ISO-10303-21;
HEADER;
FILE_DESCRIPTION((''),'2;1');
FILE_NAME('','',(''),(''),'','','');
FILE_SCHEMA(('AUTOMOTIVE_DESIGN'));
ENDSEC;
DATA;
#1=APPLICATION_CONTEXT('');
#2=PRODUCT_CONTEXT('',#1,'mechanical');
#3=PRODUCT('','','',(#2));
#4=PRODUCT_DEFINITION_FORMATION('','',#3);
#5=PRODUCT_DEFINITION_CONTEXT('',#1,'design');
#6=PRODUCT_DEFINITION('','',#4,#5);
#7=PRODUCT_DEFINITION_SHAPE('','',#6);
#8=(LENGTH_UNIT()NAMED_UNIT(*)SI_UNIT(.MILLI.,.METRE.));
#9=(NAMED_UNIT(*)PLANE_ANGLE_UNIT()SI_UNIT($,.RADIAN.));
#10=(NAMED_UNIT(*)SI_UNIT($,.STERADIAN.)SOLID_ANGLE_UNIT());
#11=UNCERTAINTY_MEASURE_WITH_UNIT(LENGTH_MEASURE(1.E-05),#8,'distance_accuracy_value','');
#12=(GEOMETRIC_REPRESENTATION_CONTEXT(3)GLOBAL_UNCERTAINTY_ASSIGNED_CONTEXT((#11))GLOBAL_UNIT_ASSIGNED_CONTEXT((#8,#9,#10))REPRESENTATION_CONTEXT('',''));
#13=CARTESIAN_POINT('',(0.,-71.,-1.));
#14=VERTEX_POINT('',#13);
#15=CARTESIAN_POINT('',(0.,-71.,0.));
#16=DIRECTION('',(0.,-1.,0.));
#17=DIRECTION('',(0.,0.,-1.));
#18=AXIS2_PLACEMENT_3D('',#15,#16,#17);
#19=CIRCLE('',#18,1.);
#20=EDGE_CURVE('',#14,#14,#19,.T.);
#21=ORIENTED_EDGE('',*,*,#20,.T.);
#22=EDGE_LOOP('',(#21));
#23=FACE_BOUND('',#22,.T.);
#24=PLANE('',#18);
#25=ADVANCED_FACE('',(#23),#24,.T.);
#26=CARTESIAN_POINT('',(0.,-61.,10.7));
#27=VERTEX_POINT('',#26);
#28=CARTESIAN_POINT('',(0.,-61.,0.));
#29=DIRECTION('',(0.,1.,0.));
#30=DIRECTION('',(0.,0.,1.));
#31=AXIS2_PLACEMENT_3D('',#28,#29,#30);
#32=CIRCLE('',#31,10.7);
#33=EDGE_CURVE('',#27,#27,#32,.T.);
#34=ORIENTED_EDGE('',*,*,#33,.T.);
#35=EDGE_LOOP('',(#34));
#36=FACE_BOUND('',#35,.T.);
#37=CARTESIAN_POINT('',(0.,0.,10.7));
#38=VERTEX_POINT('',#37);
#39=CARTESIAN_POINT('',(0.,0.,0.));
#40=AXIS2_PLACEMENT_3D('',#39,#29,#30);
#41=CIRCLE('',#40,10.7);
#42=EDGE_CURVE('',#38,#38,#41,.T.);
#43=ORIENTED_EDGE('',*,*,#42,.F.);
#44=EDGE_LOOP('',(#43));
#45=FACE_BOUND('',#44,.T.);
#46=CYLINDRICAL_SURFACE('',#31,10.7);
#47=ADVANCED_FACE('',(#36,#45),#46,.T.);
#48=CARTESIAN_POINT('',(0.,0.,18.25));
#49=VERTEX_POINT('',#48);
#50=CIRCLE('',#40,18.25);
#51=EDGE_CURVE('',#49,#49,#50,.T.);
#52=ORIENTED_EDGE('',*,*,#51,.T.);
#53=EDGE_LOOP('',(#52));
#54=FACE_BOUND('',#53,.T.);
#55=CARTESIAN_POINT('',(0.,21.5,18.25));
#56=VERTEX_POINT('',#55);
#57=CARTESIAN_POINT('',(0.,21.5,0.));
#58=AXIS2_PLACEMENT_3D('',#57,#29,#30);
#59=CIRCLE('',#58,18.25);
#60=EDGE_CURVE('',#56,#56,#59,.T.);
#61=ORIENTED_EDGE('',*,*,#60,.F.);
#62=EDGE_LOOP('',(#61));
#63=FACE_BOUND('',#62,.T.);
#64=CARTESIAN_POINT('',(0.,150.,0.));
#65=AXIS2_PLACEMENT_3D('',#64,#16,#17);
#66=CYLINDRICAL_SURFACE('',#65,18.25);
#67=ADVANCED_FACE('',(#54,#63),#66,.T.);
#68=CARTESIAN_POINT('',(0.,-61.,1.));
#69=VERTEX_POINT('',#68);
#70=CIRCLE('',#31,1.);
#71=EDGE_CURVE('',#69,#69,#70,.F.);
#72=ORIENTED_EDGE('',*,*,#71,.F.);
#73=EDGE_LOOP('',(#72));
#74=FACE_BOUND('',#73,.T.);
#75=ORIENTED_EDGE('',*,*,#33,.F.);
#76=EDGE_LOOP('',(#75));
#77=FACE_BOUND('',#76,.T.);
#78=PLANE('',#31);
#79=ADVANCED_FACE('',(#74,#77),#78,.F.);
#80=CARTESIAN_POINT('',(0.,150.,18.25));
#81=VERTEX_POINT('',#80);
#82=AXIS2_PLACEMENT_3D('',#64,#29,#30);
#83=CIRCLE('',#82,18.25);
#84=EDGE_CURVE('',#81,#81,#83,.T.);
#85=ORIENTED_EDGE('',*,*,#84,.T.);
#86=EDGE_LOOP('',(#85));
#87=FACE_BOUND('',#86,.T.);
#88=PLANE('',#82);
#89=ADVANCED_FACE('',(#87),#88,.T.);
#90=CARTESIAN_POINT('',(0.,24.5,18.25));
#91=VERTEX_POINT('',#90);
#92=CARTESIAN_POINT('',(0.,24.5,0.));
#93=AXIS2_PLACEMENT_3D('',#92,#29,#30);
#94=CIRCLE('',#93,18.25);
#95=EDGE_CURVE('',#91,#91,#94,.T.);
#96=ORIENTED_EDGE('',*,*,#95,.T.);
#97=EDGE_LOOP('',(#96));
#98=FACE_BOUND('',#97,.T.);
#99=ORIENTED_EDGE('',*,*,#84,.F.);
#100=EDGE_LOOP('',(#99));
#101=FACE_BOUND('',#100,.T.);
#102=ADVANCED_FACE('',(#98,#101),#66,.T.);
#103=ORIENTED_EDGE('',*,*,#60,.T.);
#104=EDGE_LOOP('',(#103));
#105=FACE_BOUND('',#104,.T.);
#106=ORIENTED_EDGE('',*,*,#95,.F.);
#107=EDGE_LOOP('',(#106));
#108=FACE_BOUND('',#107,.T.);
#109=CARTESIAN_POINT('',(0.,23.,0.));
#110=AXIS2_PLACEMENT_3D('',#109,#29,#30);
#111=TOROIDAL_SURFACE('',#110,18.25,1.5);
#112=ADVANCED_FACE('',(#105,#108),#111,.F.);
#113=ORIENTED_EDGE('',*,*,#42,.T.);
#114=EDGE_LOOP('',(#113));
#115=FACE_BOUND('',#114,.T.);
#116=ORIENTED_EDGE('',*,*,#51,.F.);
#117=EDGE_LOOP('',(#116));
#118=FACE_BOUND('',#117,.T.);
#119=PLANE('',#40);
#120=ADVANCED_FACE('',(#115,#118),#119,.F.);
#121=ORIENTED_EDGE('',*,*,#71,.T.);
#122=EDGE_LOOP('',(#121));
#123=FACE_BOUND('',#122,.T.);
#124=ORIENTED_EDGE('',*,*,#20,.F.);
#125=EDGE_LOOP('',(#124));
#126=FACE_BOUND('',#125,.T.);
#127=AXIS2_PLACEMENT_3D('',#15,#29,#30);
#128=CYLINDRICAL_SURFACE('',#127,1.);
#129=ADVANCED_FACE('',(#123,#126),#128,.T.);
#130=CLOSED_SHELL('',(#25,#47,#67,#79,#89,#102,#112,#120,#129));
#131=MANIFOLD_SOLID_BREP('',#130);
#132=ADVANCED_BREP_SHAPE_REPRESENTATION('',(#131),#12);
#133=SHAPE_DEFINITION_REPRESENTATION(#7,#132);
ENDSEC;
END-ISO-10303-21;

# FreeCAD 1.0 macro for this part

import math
import FreeCAD as App
import Part
import Sketcher
from FreeCAD import Vector
Q = App.Units.Quantity

doc = App.newDocument("Part")
params = doc.addObject("Spreadsheet::Sheet", "Params")
for row, (alias, value) in enumerate([
    ("sketch1_diameter", "21.4 mm"),
    ("pad1_length", "61 mm"),
    ("sketch2_diameter", "36.5 mm"),
    ("pad2_length", "150 mm"),
    ("sketch3_diameter", "2 mm"),
    ("pad3_length", "10 mm"),
    ("sketch4_radius", "1.5 mm"),
    ("groove_angle", "360 deg"),
], start=1):
    params.set(f"A{row}", alias)
    params.set(f"B{row}", "=" + value)
    params.setAlias(f"B{row}", alias)

body = doc.addObject("PartDesign::Body", "Body")

sketch1 = body.newObject("Sketcher::SketchObject", "Sketch")
sketch1.AttachmentSupport = (doc.getObject("XZ_Plane"), [""])
sketch1.MapMode = "FlatFace"
sketch1.addGeometry(Part.Circle(Vector(0, 0, 0), Vector(0, 0, 1), 11), False)
sketch1.addConstraint(Sketcher.Constraint("Coincident", 0, 3, -1, 1))
sketch1.addConstraint(Sketcher.Constraint("Diameter", 0, Q("21.4 mm")))
sketch1.setExpression("Constraints[1]", "Params.sketch1_diameter")
pad1 = body.newObject("PartDesign::Pad", "Pad")
pad1.Profile = sketch1
pad1.setExpression("Length", "Params.pad1_length")

sketch2 = body.newObject("Sketcher::SketchObject", "Sketch001")
sketch2.AttachmentSupport = (doc.getObject("XZ_Plane"), [""])
sketch2.MapMode = "FlatFace"
sketch2.addGeometry(Part.Circle(Vector(0, 0, 0), Vector(0, 0, 1), 18), False)
sketch2.addConstraint(Sketcher.Constraint("Coincident", 0, 3, -1, 1))
sketch2.addConstraint(Sketcher.Constraint("Diameter", 0, Q("36.5 mm")))
sketch2.setExpression("Constraints[1]", "Params.sketch2_diameter")
pad2 = body.newObject("PartDesign::Pad", "Pad001")
pad2.Profile = sketch2
pad2.setExpression("Length", "Params.pad2_length")
pad2.Reversed = True

sketch3 = body.newObject("Sketcher::SketchObject", "Sketch002")
sketch3.AttachmentSupport = (doc.getObject("XZ_Plane"), [""])
sketch3.MapMode = "FlatFace"
sketch3.AttachmentOffset = App.Placement(Vector(0, 0, 61), App.Rotation())
sketch3.addGeometry(Part.Circle(Vector(0, 0, 0), Vector(0, 0, 1), 1), False)
sketch3.addConstraint(Sketcher.Constraint("Coincident", 0, 3, -1, 1))
sketch3.addConstraint(Sketcher.Constraint("Diameter", 0, Q("2 mm")))
sketch3.setExpression("Constraints[1]", "Params.sketch3_diameter")
pad3 = body.newObject("PartDesign::Pad", "Pad002")
pad3.Profile = sketch3
pad3.setExpression("Length", "Params.pad3_length")

sketch4 = body.newObject("Sketcher::SketchObject", "Sketch003")
sketch4.AttachmentSupport = (doc.getObject("XY_Plane"), [""])
sketch4.MapMode = "FlatFace"
sketch4.addGeometry(Part.LineSegment(Vector(18.2, 21.5, 0), Vector(18.2, 24.5, 0)), False)
sketch4.addGeometry(Part.ArcOfCircle(Part.Circle(Vector(18.2, 23, 0), Vector(0, 0, 1), 1.5), math.radians(90), math.radians(270)), False)
sketch4.addConstraint(Sketcher.Constraint("Coincident", 0, 1, 1, 2))
sketch4.addConstraint(Sketcher.Constraint("Coincident", 1, 1, 0, 2))
sketch4.addConstraint(Sketcher.Constraint("Vertical", 0))
sketch4.addConstraint(Sketcher.Constraint("Vertical", 1, 3, 0, 1))
sketch4.addConstraint(Sketcher.Constraint("Radius", 1, Q("1.5 mm")))
sketch4.addConstraint(Sketcher.Constraint("DistanceY", -1, 1, 1, 3, Q("23 mm")))
sketch4.addConstraint(Sketcher.Constraint("DistanceX", -1, 1, 1, 3, Q("18.25 mm")))
sketch4.setExpression("Constraints[4]", "Params.sketch4_radius")
groove = body.newObject("PartDesign::Groove", "Groove")
groove.Profile = sketch4
groove.ReferenceAxis = (sketch4, ["V_Axis"])
groove.setExpression("Angle", "Params.groove_angle")

doc.recompute()
